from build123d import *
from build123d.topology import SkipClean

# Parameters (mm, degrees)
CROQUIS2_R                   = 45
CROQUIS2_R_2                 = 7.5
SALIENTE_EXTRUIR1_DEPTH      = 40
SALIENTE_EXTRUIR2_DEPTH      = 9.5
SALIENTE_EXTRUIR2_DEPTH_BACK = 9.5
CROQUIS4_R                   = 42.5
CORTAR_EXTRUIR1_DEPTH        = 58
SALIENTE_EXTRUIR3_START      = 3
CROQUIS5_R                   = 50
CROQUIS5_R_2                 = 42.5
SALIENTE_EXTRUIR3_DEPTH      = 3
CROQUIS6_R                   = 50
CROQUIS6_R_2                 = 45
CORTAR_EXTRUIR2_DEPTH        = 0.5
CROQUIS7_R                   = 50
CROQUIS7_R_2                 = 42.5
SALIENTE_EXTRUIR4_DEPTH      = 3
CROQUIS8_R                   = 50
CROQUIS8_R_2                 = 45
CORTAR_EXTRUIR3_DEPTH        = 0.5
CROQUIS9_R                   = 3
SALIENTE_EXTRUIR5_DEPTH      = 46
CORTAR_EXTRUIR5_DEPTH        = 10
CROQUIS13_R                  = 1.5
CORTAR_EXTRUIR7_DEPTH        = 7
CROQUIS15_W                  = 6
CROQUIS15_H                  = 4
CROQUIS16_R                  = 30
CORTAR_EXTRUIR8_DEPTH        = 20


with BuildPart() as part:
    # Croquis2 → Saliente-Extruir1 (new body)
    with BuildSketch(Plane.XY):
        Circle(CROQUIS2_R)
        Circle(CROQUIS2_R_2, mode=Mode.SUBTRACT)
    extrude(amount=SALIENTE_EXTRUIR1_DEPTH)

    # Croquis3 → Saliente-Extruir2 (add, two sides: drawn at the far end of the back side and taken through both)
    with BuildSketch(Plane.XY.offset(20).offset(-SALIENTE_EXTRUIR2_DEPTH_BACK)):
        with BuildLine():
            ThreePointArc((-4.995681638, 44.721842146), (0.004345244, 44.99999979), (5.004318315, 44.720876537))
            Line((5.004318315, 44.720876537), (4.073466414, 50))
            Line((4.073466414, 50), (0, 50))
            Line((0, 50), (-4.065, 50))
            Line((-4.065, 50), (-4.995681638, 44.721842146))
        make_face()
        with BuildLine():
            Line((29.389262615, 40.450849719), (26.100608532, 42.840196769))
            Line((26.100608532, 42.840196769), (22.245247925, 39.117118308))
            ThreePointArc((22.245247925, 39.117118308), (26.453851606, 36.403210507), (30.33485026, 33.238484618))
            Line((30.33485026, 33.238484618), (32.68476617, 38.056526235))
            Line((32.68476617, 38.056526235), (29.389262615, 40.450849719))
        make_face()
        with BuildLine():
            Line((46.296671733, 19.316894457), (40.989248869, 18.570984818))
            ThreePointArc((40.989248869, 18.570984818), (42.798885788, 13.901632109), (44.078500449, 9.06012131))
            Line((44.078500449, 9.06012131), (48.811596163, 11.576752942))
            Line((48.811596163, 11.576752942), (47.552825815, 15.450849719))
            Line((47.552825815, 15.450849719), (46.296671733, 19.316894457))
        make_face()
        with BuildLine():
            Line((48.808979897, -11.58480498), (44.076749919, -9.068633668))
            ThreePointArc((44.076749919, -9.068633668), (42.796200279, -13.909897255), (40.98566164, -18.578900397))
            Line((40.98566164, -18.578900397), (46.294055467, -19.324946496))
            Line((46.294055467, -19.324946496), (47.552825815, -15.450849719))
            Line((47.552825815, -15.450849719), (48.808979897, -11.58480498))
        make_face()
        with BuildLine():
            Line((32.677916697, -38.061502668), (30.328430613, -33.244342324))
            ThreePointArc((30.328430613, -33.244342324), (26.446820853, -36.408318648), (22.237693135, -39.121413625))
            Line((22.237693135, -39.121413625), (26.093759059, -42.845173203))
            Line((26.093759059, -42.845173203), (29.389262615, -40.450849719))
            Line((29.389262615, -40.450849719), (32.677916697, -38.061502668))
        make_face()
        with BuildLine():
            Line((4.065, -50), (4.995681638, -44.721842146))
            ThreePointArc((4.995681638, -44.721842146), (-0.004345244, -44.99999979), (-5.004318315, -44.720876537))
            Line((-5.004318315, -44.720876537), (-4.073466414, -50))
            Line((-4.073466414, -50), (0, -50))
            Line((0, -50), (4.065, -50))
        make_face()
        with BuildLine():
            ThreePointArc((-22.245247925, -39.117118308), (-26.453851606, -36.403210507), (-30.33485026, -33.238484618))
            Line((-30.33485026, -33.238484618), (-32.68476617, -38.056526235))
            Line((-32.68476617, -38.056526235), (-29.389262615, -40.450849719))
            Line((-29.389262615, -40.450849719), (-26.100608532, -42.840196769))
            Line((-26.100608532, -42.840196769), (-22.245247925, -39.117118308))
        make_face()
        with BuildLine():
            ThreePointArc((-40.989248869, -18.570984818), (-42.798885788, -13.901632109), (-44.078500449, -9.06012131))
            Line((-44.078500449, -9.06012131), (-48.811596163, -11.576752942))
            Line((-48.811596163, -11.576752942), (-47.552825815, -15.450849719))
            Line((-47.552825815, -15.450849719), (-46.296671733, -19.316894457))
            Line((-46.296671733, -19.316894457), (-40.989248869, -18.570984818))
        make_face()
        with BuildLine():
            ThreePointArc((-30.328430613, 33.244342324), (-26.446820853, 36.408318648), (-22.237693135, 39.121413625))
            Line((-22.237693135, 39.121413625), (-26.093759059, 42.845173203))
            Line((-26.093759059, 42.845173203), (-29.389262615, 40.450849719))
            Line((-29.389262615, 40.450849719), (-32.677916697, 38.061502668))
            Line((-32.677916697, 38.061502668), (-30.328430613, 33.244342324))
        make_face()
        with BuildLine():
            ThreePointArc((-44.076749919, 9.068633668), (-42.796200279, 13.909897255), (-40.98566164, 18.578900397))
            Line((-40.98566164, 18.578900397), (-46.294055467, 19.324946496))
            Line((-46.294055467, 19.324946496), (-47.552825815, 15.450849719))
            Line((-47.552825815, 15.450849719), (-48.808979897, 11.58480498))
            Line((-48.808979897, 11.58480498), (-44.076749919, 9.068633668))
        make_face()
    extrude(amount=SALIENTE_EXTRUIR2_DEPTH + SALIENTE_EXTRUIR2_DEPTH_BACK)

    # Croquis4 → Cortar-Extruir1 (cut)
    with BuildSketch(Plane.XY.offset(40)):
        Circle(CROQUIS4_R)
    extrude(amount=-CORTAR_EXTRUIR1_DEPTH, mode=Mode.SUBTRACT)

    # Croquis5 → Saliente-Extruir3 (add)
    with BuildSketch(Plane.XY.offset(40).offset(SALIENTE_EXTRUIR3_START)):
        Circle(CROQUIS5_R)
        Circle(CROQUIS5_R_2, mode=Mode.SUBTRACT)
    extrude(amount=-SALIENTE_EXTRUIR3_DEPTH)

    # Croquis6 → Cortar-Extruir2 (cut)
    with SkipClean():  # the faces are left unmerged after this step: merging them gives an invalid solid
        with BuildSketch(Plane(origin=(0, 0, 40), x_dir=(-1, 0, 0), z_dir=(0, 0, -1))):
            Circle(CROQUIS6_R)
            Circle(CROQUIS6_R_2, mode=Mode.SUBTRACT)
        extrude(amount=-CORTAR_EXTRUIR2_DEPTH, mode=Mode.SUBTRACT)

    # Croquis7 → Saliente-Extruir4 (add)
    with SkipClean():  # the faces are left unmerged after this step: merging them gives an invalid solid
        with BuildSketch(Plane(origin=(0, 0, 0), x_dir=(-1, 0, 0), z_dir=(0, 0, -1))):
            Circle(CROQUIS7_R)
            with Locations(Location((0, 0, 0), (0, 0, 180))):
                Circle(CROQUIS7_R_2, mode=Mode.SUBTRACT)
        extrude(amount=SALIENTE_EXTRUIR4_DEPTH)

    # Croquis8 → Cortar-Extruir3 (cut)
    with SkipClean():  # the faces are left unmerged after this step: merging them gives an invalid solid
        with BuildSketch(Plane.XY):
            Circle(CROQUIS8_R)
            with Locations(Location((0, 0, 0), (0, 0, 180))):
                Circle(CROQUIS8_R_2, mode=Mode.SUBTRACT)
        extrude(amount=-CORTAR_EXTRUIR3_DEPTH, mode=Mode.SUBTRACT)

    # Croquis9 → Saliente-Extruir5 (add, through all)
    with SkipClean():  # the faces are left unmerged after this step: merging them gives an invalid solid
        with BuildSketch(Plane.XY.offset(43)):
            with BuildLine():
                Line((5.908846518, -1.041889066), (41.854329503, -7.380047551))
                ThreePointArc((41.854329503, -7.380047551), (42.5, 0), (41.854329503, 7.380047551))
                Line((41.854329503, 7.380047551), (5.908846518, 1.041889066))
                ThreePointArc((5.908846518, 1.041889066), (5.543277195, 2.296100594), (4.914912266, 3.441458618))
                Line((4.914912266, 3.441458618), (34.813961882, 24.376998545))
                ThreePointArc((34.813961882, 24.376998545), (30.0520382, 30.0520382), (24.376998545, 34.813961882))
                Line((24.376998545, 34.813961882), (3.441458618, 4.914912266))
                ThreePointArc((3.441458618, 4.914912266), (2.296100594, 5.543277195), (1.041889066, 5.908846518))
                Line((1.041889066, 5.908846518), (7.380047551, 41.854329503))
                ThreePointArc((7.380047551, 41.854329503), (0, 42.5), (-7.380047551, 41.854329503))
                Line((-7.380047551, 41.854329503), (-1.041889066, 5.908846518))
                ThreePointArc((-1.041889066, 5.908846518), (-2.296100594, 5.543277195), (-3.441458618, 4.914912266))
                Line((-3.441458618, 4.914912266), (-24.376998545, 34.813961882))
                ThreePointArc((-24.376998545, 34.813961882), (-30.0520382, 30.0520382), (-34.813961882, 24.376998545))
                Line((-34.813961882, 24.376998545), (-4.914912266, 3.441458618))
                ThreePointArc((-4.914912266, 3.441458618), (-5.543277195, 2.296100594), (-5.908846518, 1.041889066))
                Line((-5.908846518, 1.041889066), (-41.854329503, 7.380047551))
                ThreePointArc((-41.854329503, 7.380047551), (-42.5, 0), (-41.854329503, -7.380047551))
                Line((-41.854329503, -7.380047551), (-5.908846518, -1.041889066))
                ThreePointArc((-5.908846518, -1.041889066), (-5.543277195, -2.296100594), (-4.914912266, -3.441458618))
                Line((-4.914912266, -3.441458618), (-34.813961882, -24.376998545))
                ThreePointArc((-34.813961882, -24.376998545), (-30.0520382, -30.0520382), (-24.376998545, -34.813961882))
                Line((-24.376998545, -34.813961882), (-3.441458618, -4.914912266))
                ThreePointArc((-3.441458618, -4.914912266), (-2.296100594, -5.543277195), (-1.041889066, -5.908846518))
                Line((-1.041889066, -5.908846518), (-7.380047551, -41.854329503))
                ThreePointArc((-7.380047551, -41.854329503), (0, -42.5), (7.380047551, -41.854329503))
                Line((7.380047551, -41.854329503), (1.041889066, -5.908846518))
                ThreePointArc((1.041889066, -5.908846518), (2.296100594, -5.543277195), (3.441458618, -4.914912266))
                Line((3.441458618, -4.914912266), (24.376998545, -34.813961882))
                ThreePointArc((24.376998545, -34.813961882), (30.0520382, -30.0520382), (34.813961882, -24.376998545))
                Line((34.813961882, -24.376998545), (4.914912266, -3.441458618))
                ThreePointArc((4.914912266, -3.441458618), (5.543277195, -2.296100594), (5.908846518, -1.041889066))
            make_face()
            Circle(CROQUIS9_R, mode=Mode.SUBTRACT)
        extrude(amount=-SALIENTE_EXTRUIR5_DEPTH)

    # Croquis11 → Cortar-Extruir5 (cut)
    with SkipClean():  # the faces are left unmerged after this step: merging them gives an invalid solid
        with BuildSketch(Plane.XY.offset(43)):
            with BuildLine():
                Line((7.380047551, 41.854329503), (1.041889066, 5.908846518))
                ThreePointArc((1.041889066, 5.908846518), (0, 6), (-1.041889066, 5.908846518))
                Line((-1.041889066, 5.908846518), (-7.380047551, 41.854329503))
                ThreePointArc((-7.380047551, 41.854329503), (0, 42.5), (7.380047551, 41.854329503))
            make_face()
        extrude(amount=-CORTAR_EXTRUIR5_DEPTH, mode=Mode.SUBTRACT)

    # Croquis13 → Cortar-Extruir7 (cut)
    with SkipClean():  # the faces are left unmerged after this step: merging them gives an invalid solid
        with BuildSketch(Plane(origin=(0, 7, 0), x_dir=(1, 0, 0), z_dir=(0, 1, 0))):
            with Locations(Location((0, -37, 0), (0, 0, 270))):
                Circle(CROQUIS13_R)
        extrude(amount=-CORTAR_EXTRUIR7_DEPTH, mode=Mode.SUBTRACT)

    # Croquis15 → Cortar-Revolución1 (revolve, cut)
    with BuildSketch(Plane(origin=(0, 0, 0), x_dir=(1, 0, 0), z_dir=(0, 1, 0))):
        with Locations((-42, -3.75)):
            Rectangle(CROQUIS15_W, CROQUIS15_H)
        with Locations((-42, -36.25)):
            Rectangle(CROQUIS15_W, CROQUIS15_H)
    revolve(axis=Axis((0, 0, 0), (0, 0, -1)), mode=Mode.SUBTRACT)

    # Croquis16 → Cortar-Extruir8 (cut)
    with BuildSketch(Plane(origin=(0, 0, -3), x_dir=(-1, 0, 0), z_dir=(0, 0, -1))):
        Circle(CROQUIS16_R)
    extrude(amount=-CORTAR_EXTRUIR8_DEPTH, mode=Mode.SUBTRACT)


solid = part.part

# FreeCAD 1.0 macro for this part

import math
import FreeCAD as App
import Part
import Sketcher
from FreeCAD import Vector
Q = App.Units.Quantity

doc = App.newDocument("Part")
params = doc.addObject("Spreadsheet::Sheet", "Params")
for row, (alias, value) in enumerate([
    ("sketch1_diameter", "90 mm"),
    ("sketch1_diameter2", "15 mm"),
    ("pad1_length", "40 mm"),
    ("sketch2_radius", "45 mm"),
    ("pad2_length", "9.5 mm"),
    ("pad2_length2", "9.5 mm"),
    ("sketch3_diameter", "85 mm"),
    ("pocket1_length", "58 mm"),
    ("sketch4_diameter", "100 mm"),
    ("sketch4_diameter2", "85 mm"),
    ("pad3_length", "3 mm"),
    ("sketch5_diameter", "100 mm"),
    ("sketch5_diameter2", "90 mm"),
    ("pocket2_length", "0.5 mm"),
    ("sketch6_diameter", "100 mm"),
    ("sketch6_diameter2", "85 mm"),
    ("pad4_length", "3 mm"),
    ("sketch7_diameter", "100 mm"),
    ("sketch7_diameter2", "90 mm"),
    ("pocket3_length", "0.5 mm"),
    ("sketch8_diameter", "6 mm"),
    ("sketch8_radius", "6 mm"),
    ("sketch8_radius2", "42.5 mm"),
    ("pad5_length", "46 mm"),
    ("sketch9_radius", "6 mm"),
    ("sketch9_radius2", "42.5 mm"),
    ("pocket4_length", "10 mm"),
    ("sketch10_diameter", "3 mm"),
    ("pocket5_length", "7 mm"),
    ("sketch11_width", "6 mm"),
    ("sketch11_height", "4 mm"),
    ("groove_angle", "360 deg"),
    ("sketch12_diameter", "60 mm"),
    ("pocket6_length", "20 mm"),
], start=1):
    params.set(f"A{row}", alias)
    params.set(f"B{row}", "=" + value)
    params.setAlias(f"B{row}", alias)

body = doc.addObject("PartDesign::Body", "Body")

sketch1 = body.newObject("Sketcher::SketchObject", "Sketch")
sketch1.AttachmentSupport = (doc.getObject("XY_Plane"), [""])
sketch1.MapMode = "FlatFace"
sketch1.addGeometry([
    Part.Circle(Vector(0, 0, 0), Vector(0, 0, 1), 45),
    Part.Circle(Vector(0, 0, 0), Vector(0, 0, 1), 8),
], False)
sketch1.addConstraint([
    Sketcher.Constraint("Coincident", 0, 3, -1, 1),
    Sketcher.Constraint("Coincident", 1, 3, -1, 1),
    Sketcher.Constraint("Diameter", 0, 90.0),
    Sketcher.Constraint("Diameter", 1, 15.0),
])
sketch1.setExpression("Constraints[2]", "Params.sketch1_diameter")
sketch1.setExpression("Constraints[3]", "Params.sketch1_diameter2")
pad1 = body.newObject("PartDesign::Pad", "Pad")
pad1.Profile = sketch1
pad1.setExpression("Length", "Params.pad1_length")

sketch2 = body.newObject("Sketcher::SketchObject", "Sketch001")
sketch2.AttachmentSupport = (doc.getObject("XY_Plane"), [""])
sketch2.MapMode = "FlatFace"
sketch2.AttachmentOffset = App.Placement(Vector(0, 0, 20), App.Rotation())
sketch2.addGeometry([
    Part.ArcOfCircle(Part.Circle(Vector(0, 0, 0), Vector(0, 0, 1), 45), math.radians(83.62), math.radians(96.37)),
    Part.LineSegment(Vector(5, 44.7, 0), Vector(4.1, 50, 0)),
    Part.LineSegment(Vector(4.1, 50, 0), Vector(-4.1, 50, 0)),
    Part.LineSegment(Vector(-4.1, 50, 0), Vector(-5, 44.7, 0)),
    Part.LineSegment(Vector(29.4, 40.5, 0), Vector(26.1, 42.8, 0)),
    Part.LineSegment(Vector(26.1, 42.8, 0), Vector(22.2, 39.1, 0)),
    Part.ArcOfCircle(Part.Circle(Vector(0, 0, 0), Vector(0, 0, 1), 45), math.radians(47.62), math.radians(60.37)),
    Part.LineSegment(Vector(30.3, 33.2, 0), Vector(32.7, 38.1, 0)),
    Part.LineSegment(Vector(32.7, 38.1, 0), Vector(29.4, 40.5, 0)),
    Part.LineSegment(Vector(46.3, 19.3, 0), Vector(41, 18.6, 0)),
    Part.ArcOfCircle(Part.Circle(Vector(0, 0, 0), Vector(0, 0, 1), 45), math.radians(11.62), math.radians(24.37)),
    Part.LineSegment(Vector(44.1, 9.1, 0), Vector(48.8, 11.6, 0)),
    Part.LineSegment(Vector(48.8, 11.6, 0), Vector(47.6, 15.5, 0)),
    Part.LineSegment(Vector(47.6, 15.5, 0), Vector(46.3, 19.3, 0)),
    Part.LineSegment(Vector(48.8, -11.6, 0), Vector(44.1, -9.1, 0)),
    Part.ArcOfCircle(Part.Circle(Vector(0, 0, 0), Vector(0, 0, 1), 45), math.radians(-24.38), math.radians(-11.63)),
    Part.LineSegment(Vector(41, -18.6, 0), Vector(46.3, -19.3, 0)),
    Part.LineSegment(Vector(46.3, -19.3, 0), Vector(47.6, -15.5, 0)),
    Part.LineSegment(Vector(47.6, -15.5, 0), Vector(48.8, -11.6, 0)),
    Part.LineSegment(Vector(32.7, -38.1, 0), Vector(30.3, -33.2, 0)),
    Part.ArcOfCircle(Part.Circle(Vector(0, 0, 0), Vector(0, 0, 1), 45), math.radians(-60.38), math.radians(-47.63)),
    Part.LineSegment(Vector(22.2, -39.1, 0), Vector(26.1, -42.8, 0)),
    Part.LineSegment(Vector(26.1, -42.8, 0), Vector(29.4, -40.5, 0)),
    Part.LineSegment(Vector(29.4, -40.5, 0), Vector(32.7, -38.1, 0)),
    Part.LineSegment(Vector(4.1, -50, 0), Vector(5, -44.7, 0)),
    Part.ArcOfCircle(Part.Circle(Vector(0, 0, 0), Vector(0, 0, 1), 45), math.radians(-96.38), math.radians(-83.63)),
    Part.LineSegment(Vector(-5, -44.7, 0), Vector(-4.1, -50, 0)),
    Part.LineSegment(Vector(-4.1, -50, 0), Vector(4.1, -50, 0)),
    Part.ArcOfCircle(Part.Circle(Vector(0, 0, 0), Vector(0, 0, 1), 45), math.radians(-132.38), math.radians(-119.63)),
    Part.LineSegment(Vector(-30.3, -33.2, 0), Vector(-32.7, -38.1, 0)),
    Part.LineSegment(Vector(-32.7, -38.1, 0), Vector(-29.4, -40.5, 0)),
    Part.LineSegment(Vector(-29.4, -40.5, 0), Vector(-26.1, -42.8, 0)),
    Part.LineSegment(Vector(-26.1, -42.8, 0), Vector(-22.2, -39.1, 0)),
    Part.ArcOfCircle(Part.Circle(Vector(0, 0, 0), Vector(0, 0, 1), 45), math.radians(-168.38), math.radians(-155.63)),
    Part.LineSegment(Vector(-44.1, -9.1, 0), Vector(-48.8, -11.6, 0)),
    Part.LineSegment(Vector(-48.8, -11.6, 0), Vector(-47.6, -15.5, 0)),
    Part.LineSegment(Vector(-47.6, -15.5, 0), Vector(-46.3, -19.3, 0)),
    Part.LineSegment(Vector(-46.3, -19.3, 0), Vector(-41, -18.6, 0)),
    Part.ArcOfCircle(Part.Circle(Vector(0, 0, 0), Vector(0, 0, 1), 45), math.radians(119.62), math.radians(132.37)),
    Part.LineSegment(Vector(-22.2, 39.1, 0), Vector(-26.1, 42.8, 0)),
    Part.LineSegment(Vector(-26.1, 42.8, 0), Vector(-29.4, 40.5, 0)),
    Part.LineSegment(Vector(-29.4, 40.5, 0), Vector(-32.7, 38.1, 0)),
    Part.LineSegment(Vector(-32.7, 38.1, 0), Vector(-30.3, 33.2, 0)),
    Part.ArcOfCircle(Part.Circle(Vector(0, 0, 0), Vector(0, 0, 1), 45), math.radians(155.62), math.radians(168.37)),
    Part.LineSegment(Vector(-41, 18.6, 0), Vector(-46.3, 19.3, 0)),
    Part.LineSegment(Vector(-46.3, 19.3, 0), Vector(-47.6, 15.5, 0)),
    Part.LineSegment(Vector(-47.6, 15.5, 0), Vector(-48.8, 11.6, 0)),
    Part.LineSegment(Vector(-48.8, 11.6, 0), Vector(-44.1, 9.1, 0)),
], False)
sketch2.addConstraint([
    Sketcher.Constraint("Coincident", 0, 1, 1, 1),
    Sketcher.Constraint("Coincident", 1, 2, 2, 1),
    Sketcher.Constraint("Coincident", 2, 2, 3, 1),
    Sketcher.Constraint("Coincident", 3, 2, 0, 2),
    Sketcher.Constraint("Coincident", 4, 2, 5, 1),
    Sketcher.Constraint("Coincident", 5, 2, 6, 2),
    Sketcher.Constraint("Coincident", 6, 1, 7, 1),
    Sketcher.Constraint("Coincident", 7, 2, 8, 1),
    Sketcher.Constraint("Coincident", 8, 2, 4, 1),
    Sketcher.Constraint("Coincident", 9, 2, 10, 2),
    Sketcher.Constraint("Coincident", 10, 1, 11, 1),
    Sketcher.Constraint("Coincident", 11, 2, 12, 1),
    Sketcher.Constraint("Coincident", 12, 2, 13, 1),
    Sketcher.Constraint("Coincident", 13, 2, 9, 1),
    Sketcher.Constraint("Coincident", 14, 2, 15, 2),
    Sketcher.Constraint("Coincident", 15, 1, 16, 1),
    Sketcher.Constraint("Coincident", 16, 2, 17, 1),
    Sketcher.Constraint("Coincident", 17, 2, 18, 1),
    Sketcher.Constraint("Coincident", 18, 2, 14, 1),
    Sketcher.Constraint("Coincident", 19, 2, 20, 2),
    Sketcher.Constraint("Coincident", 20, 1, 21, 1),
    Sketcher.Constraint("Coincident", 21, 2, 22, 1),
    Sketcher.Constraint("Coincident", 22, 2, 23, 1),
    Sketcher.Constraint("Coincident", 23, 2, 19, 1),
    Sketcher.Constraint("Coincident", 24, 2, 25, 2),
    Sketcher.Constraint("Coincident", 25, 1, 26, 1),
    Sketcher.Constraint("Coincident", 26, 2, 27, 1),
    Sketcher.Constraint("Coincident", 27, 2, 24, 1),
    Sketcher.Constraint("Coincident", 28, 1, 29, 1),
    Sketcher.Constraint("Coincident", 29, 2, 30, 1),
    Sketcher.Constraint("Coincident", 30, 2, 31, 1),
    Sketcher.Constraint("Coincident", 31, 2, 32, 1),
    Sketcher.Constraint("Coincident", 32, 2, 28, 2),
    Sketcher.Constraint("Coincident", 33, 1, 34, 1),
    Sketcher.Constraint("Coincident", 34, 2, 35, 1),
    Sketcher.Constraint("Coincident", 35, 2, 36, 1),
    Sketcher.Constraint("Coincident", 36, 2, 37, 1),
    Sketcher.Constraint("Coincident", 37, 2, 33, 2),
    Sketcher.Constraint("Coincident", 38, 1, 39, 1),
    Sketcher.Constraint("Coincident", 39, 2, 40, 1),
    Sketcher.Constraint("Coincident", 40, 2, 41, 1),
    Sketcher.Constraint("Coincident", 41, 2, 42, 1),
    Sketcher.Constraint("Coincident", 42, 2, 38, 2),
    Sketcher.Constraint("Coincident", 43, 1, 44, 1),
    Sketcher.Constraint("Coincident", 44, 2, 45, 1),
    Sketcher.Constraint("Coincident", 45, 2, 46, 1),
    Sketcher.Constraint("Coincident", 46, 2, 47, 1),
    Sketcher.Constraint("Coincident", 47, 2, 43, 2),
    Sketcher.Constraint("Horizontal", 2),
    Sketcher.Constraint("Horizontal", 27),
    Sketcher.Constraint("Coincident", 0, 3, -1, 1),
    Sketcher.Constraint("Coincident", 6, 3, -1, 1),
    Sketcher.Constraint("Coincident", 10, 3, -1, 1),
    Sketcher.Constraint("Coincident", 15, 3, -1, 1),
    Sketcher.Constraint("Coincident", 20, 3, -1, 1),
    Sketcher.Constraint("Coincident", 25, 3, -1, 1),
    Sketcher.Constraint("Coincident", 28, 3, -1, 1),
    Sketcher.Constraint("Coincident", 33, 3, -1, 1),
    Sketcher.Constraint("Coincident", 38, 3, -1, 1),
    Sketcher.Constraint("Coincident", 43, 3, -1, 1),
    Sketcher.Constraint("Equal", 0, 6),
    Sketcher.Constraint("Equal", 6, 10),
    Sketcher.Constraint("Equal", 10, 15),
    Sketcher.Constraint("Equal", 15, 20),
    Sketcher.Constraint("Equal", 20, 25),
    Sketcher.Constraint("Equal", 25, 28),
    Sketcher.Constraint("Equal", 28, 33),
    Sketcher.Constraint("Equal", 33, 38),
    Sketcher.Constraint("Equal", 38, 43),
    Sketcher.Constraint("Symmetric", 1, 2, 26, 2, -1, 1),
    Sketcher.Constraint("Symmetric", 7, 2, 29, 2, -1, 1),
    Sketcher.Constraint("Symmetric", 8, 2, 30, 2, -1, 1),
    Sketcher.Constraint("Symmetric", 4, 2, 31, 2, -1, 1),
    Sketcher.Constraint("Symmetric", 11, 2, 34, 2, -1, 1),
    Sketcher.Constraint("Symmetric", 12, 2, 35, 2, -1, 1),
    Sketcher.Constraint("Symmetric", 13, 2, 36, 2, -1, 1),
    Sketcher.Constraint("Symmetric", 21, 2, 39, 2, -1, 1),
    Sketcher.Constraint("Symmetric", 22, 2, 40, 2, -1, 1),
    Sketcher.Constraint("Symmetric", 23, 2, 41, 2, -1, 1),
    Sketcher.Constraint("Symmetric", 16, 2, 44, 2, -1, 1),
    Sketcher.Constraint("Symmetric", 17, 2, 45, 2, -1, 1),
    Sketcher.Constraint("Symmetric", 18, 2, 46, 2, -1, 1),
    Sketcher.Constraint("Symmetric", 22, 2, 30, 2, -2),
    Sketcher.Constraint("Symmetric", 17, 2, 35, 2, -2),
    Sketcher.Constraint("Parallel", 4, 8),
    Sketcher.Constraint("Parallel", 12, 13),
    Sketcher.Constraint("Parallel", 17, 18),
    Sketcher.Constraint("Parallel", 22, 23),
    Sketcher.Constraint("Parallel", 3, 24),
    Sketcher.Constraint("Parallel", 1, 26),
    Sketcher.Constraint("Parallel", 7, 29),
    Sketcher.Constraint("Parallel", 5, 32),
    Sketcher.Constraint("Parallel", 11, 34),
    Sketcher.Constraint("Parallel", 9, 37),
    Sketcher.Constraint("Parallel", 21, 39),
    Sketcher.Constraint("Parallel", 19, 42),
    Sketcher.Constraint("Parallel", 16, 44),
    Sketcher.Constraint("Parallel", 14, 47),
    Sketcher.Constraint("Equal", 2, 27),
    Sketcher.Constraint("Equal", 3, 5),
    Sketcher.Constraint("Equal", 1, 7),
    Sketcher.Constraint("Equal", 5, 9),
    Sketcher.Constraint("Equal", 7, 11),
    Sketcher.Constraint("Equal", 8, 12),
    Sketcher.Constraint("Equal", 4, 13),
    Sketcher.Constraint("Equal", 9, 14),
    Sketcher.Constraint("Equal", 11, 16),
    Sketcher.Constraint("Equal", 12, 17),
    Sketcher.Constraint("Equal", 13, 18),
    Sketcher.Constraint("Equal", 14, 19),
    Sketcher.Constraint("Equal", 16, 21),
    Sketcher.Constraint("Equal", 17, 22),
    Sketcher.Constraint("Equal", 18, 23),
    Sketcher.Constraint("Radius", 0, 45.0),
    Sketcher.Constraint("Angle", 1, Q("100 deg")),
    Sketcher.Constraint("Angle", 3, Q("-100 deg")),
    Sketcher.Constraint("Angle", 4, Q("144 deg")),
    Sketcher.Constraint("Angle", 5, Q("-136 deg")),
    Sketcher.Constraint("Angle", 7, Q("64 deg")),
    Sketcher.Constraint("Angle", 9, Q("-172 deg")),
    Sketcher.Constraint("Angle", 11, Q("28 deg")),
    Sketcher.Constraint("Angle", 12, Q("108 deg")),
    Sketcher.Constraint("Angle", 14, Q("152 deg")),
    Sketcher.Constraint("Angle", 17, Q("72 deg")),
    Sketcher.Constraint("Angle", 19, Q("116 deg")),
    Sketcher.Constraint("DistanceY", -1, 1, 1, 2, 50.0),
    Sketcher.Constraint("DistanceX", 3, 2, 0, 1, 10.0),
    Sketcher.Constraint("DistanceY", 30, 2, 35, 2, 25.0),
    Sketcher.Constraint("Distance", 4, 4.065),
])
sketch2.setExpression("Constraints[113]", "Params.sketch2_radius")
pad2 = body.newObject("PartDesign::Pad", "Pad001")
pad2.Profile = sketch2
pad2.Type = "TwoLengths"
pad2.setExpression("Length", "Params.pad2_length")
pad2.setExpression("Length2", "Params.pad2_length2")

sketch3 = body.newObject("Sketcher::SketchObject", "Sketch002")
sketch3.AttachmentSupport = (doc.getObject("XY_Plane"), [""])
sketch3.MapMode = "FlatFace"
sketch3.AttachmentOffset = App.Placement(Vector(0, 0, 40), App.Rotation())
sketch3.addGeometry(Part.Circle(Vector(0, 0, 0), Vector(0, 0, 1), 42), False)
sketch3.addConstraint([
    Sketcher.Constraint("Coincident", 0, 3, -1, 1),
    Sketcher.Constraint("Diameter", 0, 85.0),
])
sketch3.setExpression("Constraints[1]", "Params.sketch3_diameter")
pocket1 = body.newObject("PartDesign::Pocket", "Pocket")
pocket1.Profile = sketch3
pocket1.setExpression("Length", "Params.pocket1_length")

sketch4 = body.newObject("Sketcher::SketchObject", "Sketch003")
sketch4.AttachmentSupport = (doc.getObject("XY_Plane"), [""])
sketch4.MapMode = "FlatFace"
sketch4.AttachmentOffset = App.Placement(Vector(0, 0, 43), App.Rotation())
sketch4.addGeometry([
    Part.Circle(Vector(0, 0, 0), Vector(0, 0, 1), 50),
    Part.Circle(Vector(0, 0, 0), Vector(0, 0, 1), 42),
], False)
sketch4.addConstraint([
    Sketcher.Constraint("Coincident", 0, 3, -1, 1),
    Sketcher.Constraint("Coincident", 1, 3, -1, 1),
    Sketcher.Constraint("Diameter", 0, 100.0),
    Sketcher.Constraint("Diameter", 1, 85.0),
])
sketch4.setExpression("Constraints[2]", "Params.sketch4_diameter")
sketch4.setExpression("Constraints[3]", "Params.sketch4_diameter2")
pad3 = body.newObject("PartDesign::Pad", "Pad002")
pad3.Profile = sketch4
pad3.setExpression("Length", "Params.pad3_length")
pad3.Reversed = True

sketch5 = body.newObject("Sketcher::SketchObject", "Sketch004")
sketch5.AttachmentSupport = (doc.getObject("XY_Plane"), [""])
sketch5.MapMode = "FlatFace"
sketch5.AttachmentOffset = App.Placement(Vector(0, 0, 40), App.Rotation())
sketch5.addGeometry([
    Part.Circle(Vector(0, 0, 0), Vector(0, 0, 1), 50),
    Part.Circle(Vector(0, 0, 0), Vector(0, 0, 1), 45),
], False)
sketch5.addConstraint([
    Sketcher.Constraint("Coincident", 0, 3, -1, 1),
    Sketcher.Constraint("Coincident", 1, 3, -1, 1),
    Sketcher.Constraint("Diameter", 0, 100.0),
    Sketcher.Constraint("Diameter", 1, 90.0),
])
sketch5.setExpression("Constraints[2]", "Params.sketch5_diameter")
sketch5.setExpression("Constraints[3]", "Params.sketch5_diameter2")
pocket2 = body.newObject("PartDesign::Pocket", "Pocket001")
pocket2.Profile = sketch5
pocket2.setExpression("Length", "Params.pocket2_length")
pocket2.Reversed = True

sketch6 = body.newObject("Sketcher::SketchObject", "Sketch005")
sketch6.AttachmentSupport = (doc.getObject("XY_Plane"), [""])
sketch6.MapMode = "FlatFace"
sketch6.addGeometry([
    Part.Circle(Vector(0, 0, 0), Vector(0, 0, 1), 50),
    Part.Circle(Vector(0, 0, 0), Vector(0, 0, 1), 42),
], False)
sketch6.addConstraint([
    Sketcher.Constraint("Coincident", 0, 3, -1, 1),
    Sketcher.Constraint("Coincident", 1, 3, -1, 1),
    Sketcher.Constraint("Diameter", 0, 100.0),
    Sketcher.Constraint("Diameter", 1, 85.0),
])
sketch6.setExpression("Constraints[2]", "Params.sketch6_diameter")
sketch6.setExpression("Constraints[3]", "Params.sketch6_diameter2")
pad4 = body.newObject("PartDesign::Pad", "Pad003")
pad4.Profile = sketch6
pad4.setExpression("Length", "Params.pad4_length")
pad4.Reversed = True

sketch7 = body.newObject("Sketcher::SketchObject", "Sketch006")
sketch7.AttachmentSupport = (doc.getObject("XY_Plane"), [""])
sketch7.MapMode = "FlatFace"
sketch7.addGeometry([
    Part.Circle(Vector(0, 0, 0), Vector(0, 0, 1), 50),
    Part.Circle(Vector(0, 0, 0), Vector(0, 0, 1), 45),
], False)
sketch7.addConstraint([
    Sketcher.Constraint("Coincident", 0, 3, -1, 1),
    Sketcher.Constraint("Coincident", 1, 3, -1, 1),
    Sketcher.Constraint("Diameter", 0, 100.0),
    Sketcher.Constraint("Diameter", 1, 90.0),
])
sketch7.setExpression("Constraints[2]", "Params.sketch7_diameter")
sketch7.setExpression("Constraints[3]", "Params.sketch7_diameter2")
pocket3 = body.newObject("PartDesign::Pocket", "Pocket002")
pocket3.Profile = sketch7
pocket3.setExpression("Length", "Params.pocket3_length")

sketch8 = body.newObject("Sketcher::SketchObject", "Sketch007")
sketch8.AttachmentSupport = (doc.getObject("XY_Plane"), [""])
sketch8.MapMode = "FlatFace"
sketch8.AttachmentOffset = App.Placement(Vector(0, 0, 43), App.Rotation())
sketch8.addGeometry([
    Part.LineSegment(Vector(5.9, -1, 0), Vector(41.9, -7.4, 0)),
    Part.ArcOfCircle(Part.Circle(Vector(0, 0, 0), Vector(0, 0, 1), 42.5), math.radians(-10), math.radians(10)),
    Part.LineSegment(Vector(41.9, 7.4, 0), Vector(5.9, 1, 0)),
    Part.ArcOfCircle(Part.Circle(Vector(0, 0, 0), Vector(0, 0, 1), 6), math.radians(10), math.radians(35)),
    Part.LineSegment(Vector(4.9, 3.4, 0), Vector(34.8, 24.4, 0)),
    Part.ArcOfCircle(Part.Circle(Vector(0, 0, 0), Vector(0, 0, 1), 42.5), math.radians(35), math.radians(55)),
    Part.LineSegment(Vector(24.4, 34.8, 0), Vector(3.4, 4.9, 0)),
    Part.ArcOfCircle(Part.Circle(Vector(0, 0, 0), Vector(0, 0, 1), 6), math.radians(55), math.radians(80)),
    Part.LineSegment(Vector(1, 5.9, 0), Vector(7.4, 41.9, 0)),
    Part.ArcOfCircle(Part.Circle(Vector(0, 0, 0), Vector(0, 0, 1), 42.5), math.radians(80), math.radians(100)),
    Part.LineSegment(Vector(-7.4, 41.9, 0), Vector(-1, 5.9, 0)),
    Part.ArcOfCircle(Part.Circle(Vector(0, 0, 0), Vector(0, 0, 1), 6), math.radians(100), math.radians(125)),
    Part.LineSegment(Vector(-3.4, 4.9, 0), Vector(-24.4, 34.8, 0)),
    Part.ArcOfCircle(Part.Circle(Vector(0, 0, 0), Vector(0, 0, 1), 42.5), math.radians(125), math.radians(145)),
    Part.LineSegment(Vector(-34.8, 24.4, 0), Vector(-4.9, 3.4, 0)),
    Part.ArcOfCircle(Part.Circle(Vector(0, 0, 0), Vector(0, 0, 1), 6), math.radians(145), math.radians(170)),
    Part.LineSegment(Vector(-5.9, 1, 0), Vector(-41.9, 7.4, 0)),
    Part.ArcOfCircle(Part.Circle(Vector(0, 0, 0), Vector(0, 0, 1), 42.5), math.radians(170), math.radians(190)),
    Part.LineSegment(Vector(-41.9, -7.4, 0), Vector(-5.9, -1, 0)),
    Part.ArcOfCircle(Part.Circle(Vector(0, 0, 0), Vector(0, 0, 1), 6), math.radians(-170), math.radians(-145)),
    Part.LineSegment(Vector(-4.9, -3.4, 0), Vector(-34.8, -24.4, 0)),
    Part.ArcOfCircle(Part.Circle(Vector(0, 0, 0), Vector(0, 0, 1), 42.5), math.radians(-145), math.radians(-125)),
    Part.LineSegment(Vector(-24.4, -34.8, 0), Vector(-3.4, -4.9, 0)),
    Part.ArcOfCircle(Part.Circle(Vector(0, 0, 0), Vector(0, 0, 1), 6), math.radians(-125), math.radians(-100)),
    Part.LineSegment(Vector(-1, -5.9, 0), Vector(-7.4, -41.9, 0)),
    Part.ArcOfCircle(Part.Circle(Vector(0, 0, 0), Vector(0, 0, 1), 42.5), math.radians(-100), math.radians(-80)),
    Part.LineSegment(Vector(7.4, -41.9, 0), Vector(1, -5.9, 0)),
    Part.ArcOfCircle(Part.Circle(Vector(0, 0, 0), Vector(0, 0, 1), 6), math.radians(-80), math.radians(-55)),
    Part.LineSegment(Vector(3.4, -4.9, 0), Vector(24.4, -34.8, 0)),
    Part.ArcOfCircle(Part.Circle(Vector(0, 0, 0), Vector(0, 0, 1), 42.5), math.radians(-55), math.radians(-35)),
    Part.LineSegment(Vector(34.8, -24.4, 0), Vector(4.9, -3.4, 0)),
    Part.ArcOfCircle(Part.Circle(Vector(0, 0, 0), Vector(0, 0, 1), 6), math.radians(-35), math.radians(-10)),
    Part.Circle(Vector(0, 0, 0), Vector(0, 0, 1), 3),
], False)
sketch8.addConstraint([
    Sketcher.Constraint("Coincident", 0, 2, 1, 1),
    Sketcher.Constraint("Coincident", 1, 2, 2, 1),
    Sketcher.Constraint("Coincident", 2, 2, 3, 1),
    Sketcher.Constraint("Coincident", 3, 2, 4, 1),
    Sketcher.Constraint("Coincident", 4, 2, 5, 1),
    Sketcher.Constraint("Coincident", 5, 2, 6, 1),
    Sketcher.Constraint("Coincident", 6, 2, 7, 1),
    Sketcher.Constraint("Coincident", 7, 2, 8, 1),
    Sketcher.Constraint("Coincident", 8, 2, 9, 1),
    Sketcher.Constraint("Coincident", 9, 2, 10, 1),
    Sketcher.Constraint("Coincident", 10, 2, 11, 1),
    Sketcher.Constraint("Coincident", 11, 2, 12, 1),
    Sketcher.Constraint("Coincident", 12, 2, 13, 1),
    Sketcher.Constraint("Coincident", 13, 2, 14, 1),
    Sketcher.Constraint("Coincident", 14, 2, 15, 1),
    Sketcher.Constraint("Coincident", 15, 2, 16, 1),
    Sketcher.Constraint("Coincident", 16, 2, 17, 1),
    Sketcher.Constraint("Coincident", 17, 2, 18, 1),
    Sketcher.Constraint("Coincident", 18, 2, 19, 1),
    Sketcher.Constraint("Coincident", 19, 2, 20, 1),
    Sketcher.Constraint("Coincident", 20, 2, 21, 1),
    Sketcher.Constraint("Coincident", 21, 2, 22, 1),
    Sketcher.Constraint("Coincident", 22, 2, 23, 1),
    Sketcher.Constraint("Coincident", 23, 2, 24, 1),
    Sketcher.Constraint("Coincident", 24, 2, 25, 1),
    Sketcher.Constraint("Coincident", 25, 2, 26, 1),
    Sketcher.Constraint("Coincident", 26, 2, 27, 1),
    Sketcher.Constraint("Coincident", 27, 2, 28, 1),
    Sketcher.Constraint("Coincident", 28, 2, 29, 1),
    Sketcher.Constraint("Coincident", 29, 2, 30, 1),
    Sketcher.Constraint("Coincident", 30, 2, 31, 1),
    Sketcher.Constraint("Coincident", 31, 2, 0, 1),
    Sketcher.Constraint("Coincident", 1, 3, -1, 1),
    Sketcher.Constraint("Coincident", 3, 3, -1, 1),
    Sketcher.Constraint("Coincident", 5, 3, -1, 1),
    Sketcher.Constraint("Coincident", 7, 3, -1, 1),
    Sketcher.Constraint("Coincident", 9, 3, -1, 1),
    Sketcher.Constraint("Coincident", 11, 3, -1, 1),
    Sketcher.Constraint("Coincident", 13, 3, -1, 1),
    Sketcher.Constraint("Coincident", 15, 3, -1, 1),
    Sketcher.Constraint("Coincident", 17, 3, -1, 1),
    Sketcher.Constraint("Coincident", 19, 3, -1, 1),
    Sketcher.Constraint("Coincident", 21, 3, -1, 1),
    Sketcher.Constraint("Coincident", 23, 3, -1, 1),
    Sketcher.Constraint("Coincident", 25, 3, -1, 1),
    Sketcher.Constraint("Coincident", 27, 3, -1, 1),
    Sketcher.Constraint("Coincident", 29, 3, -1, 1),
    Sketcher.Constraint("Coincident", 31, 3, -1, 1),
    Sketcher.Constraint("Coincident", 32, 3, -1, 1),
    Sketcher.Constraint("Equal", 1, 5),
    Sketcher.Constraint("Equal", 3, 7),
    Sketcher.Constraint("Equal", 5, 9),
    Sketcher.Constraint("Equal", 7, 11),
    Sketcher.Constraint("Equal", 9, 13),
    Sketcher.Constraint("Equal", 11, 15),
    Sketcher.Constraint("Equal", 13, 17),
    Sketcher.Constraint("Equal", 15, 19),
    Sketcher.Constraint("Equal", 17, 21),
    Sketcher.Constraint("Equal", 19, 23),
    Sketcher.Constraint("Equal", 21, 25),
    Sketcher.Constraint("Equal", 23, 27),
    Sketcher.Constraint("Equal", 25, 29),
    Sketcher.Constraint("Equal", 27, 31),
    Sketcher.Constraint("Perpendicular", 0, 8),
    Sketcher.Constraint("Perpendicular", 2, 10),
    Sketcher.Constraint("Perpendicular", 4, 12),
    Sketcher.Constraint("Perpendicular", 6, 14),
    Sketcher.Constraint("Perpendicular", 8, 16),
    Sketcher.Constraint("Perpendicular", 10, 18),
    Sketcher.Constraint("Perpendicular", 12, 20),
    Sketcher.Constraint("Perpendicular", 14, 22),
    Sketcher.Constraint("Perpendicular", 16, 24),
    Sketcher.Constraint("Perpendicular", 18, 26),
    Sketcher.Constraint("Perpendicular", 20, 28),
    Sketcher.Constraint("Perpendicular", 22, 30),
    Sketcher.Constraint("Horizontal", 8, 2, 9, 2),
    Sketcher.Constraint("Horizontal", 7, 2, 10, 2),
    Sketcher.Constraint("Horizontal", 6, 2, 11, 2),
    Sketcher.Constraint("Horizontal", 5, 2, 12, 2),
    Sketcher.Constraint("Horizontal", 4, 2, 13, 2),
    Sketcher.Constraint("Horizontal", 2, 2, 15, 2),
    Sketcher.Constraint("Horizontal", 0, 2, 17, 2),
    Sketcher.Constraint("Horizontal", 24, 2, 25, 2),
    Sketcher.Constraint("Horizontal", 22, 2, 27, 2),
    Sketcher.Constraint("Horizontal", 20, 2, 29, 2),
    Sketcher.Constraint("Vertical", 0, 2, 1, 2),
    Sketcher.Constraint("Vertical", 14, 2, 19, 2),
    Sketcher.Constraint("Vertical", 12, 2, 21, 2),
    Sketcher.Constraint("Vertical", 10, 2, 23, 2),
    Sketcher.Constraint("Diameter", 32, 6.0),
    Sketcher.Constraint("Radius", 3, 6.0),
    Sketcher.Constraint("Radius", 1, 42.5),
    Sketcher.Constraint("Angle", 0, Q("-10 deg")),
    Sketcher.Constraint("Angle", 4, Q("35 deg")),
    Sketcher.Constraint("DistanceY", -1, 1, 4, 2, 24.376999),
    Sketcher.Constraint("DistanceX", -1, 1, 5, 2, 24.376999),
    Sketcher.Constraint("DistanceX", -1, 1, 0, 2, 41.85433),
    Sketcher.Constraint("DistanceX", -1, 1, 7, 2, 1.041889),
])
sketch8.setExpression("Constraints[89]", "Params.sketch8_diameter")
sketch8.setExpression("Constraints[90]", "Params.sketch8_radius")
sketch8.setExpression("Constraints[91]", "Params.sketch8_radius2")
pad5 = body.newObject("PartDesign::Pad", "Pad004")
pad5.Profile = sketch8
pad5.setExpression("Length", "Params.pad5_length")
pad5.Reversed = True

sketch9 = body.newObject("Sketcher::SketchObject", "Sketch008")
sketch9.AttachmentSupport = (doc.getObject("XY_Plane"), [""])
sketch9.MapMode = "FlatFace"
sketch9.AttachmentOffset = App.Placement(Vector(0, 0, 43), App.Rotation())
sketch9.addGeometry([
    Part.LineSegment(Vector(1, 5.9, 0), Vector(7.4, 41.9, 0)),
    Part.ArcOfCircle(Part.Circle(Vector(0, 0, 0), Vector(0, 0, 1), 42.5), math.radians(80), math.radians(100)),
    Part.LineSegment(Vector(-7.4, 41.9, 0), Vector(-1, 5.9, 0)),
    Part.ArcOfCircle(Part.Circle(Vector(0, 0, 0), Vector(0, 0, 1), 6), math.radians(80), math.radians(100)),
], False)
sketch9.addConstraint([
    Sketcher.Constraint("Coincident", 0, 2, 1, 1),
    Sketcher.Constraint("Coincident", 1, 2, 2, 1),
    Sketcher.Constraint("Coincident", 2, 2, 3, 2),
    Sketcher.Constraint("Coincident", 3, 1, 0, 1),
    Sketcher.Constraint("Coincident", 1, 3, -1, 1),
    Sketcher.Constraint("Coincident", 3, 3, -1, 1),
    Sketcher.Constraint("Horizontal", 0, 2, 1, 2),
    Sketcher.Constraint("Horizontal", 2, 2, 3, 1),
    Sketcher.Constraint("Radius", 3, 6.0),
    Sketcher.Constraint("Radius", 1, 42.5),
    Sketcher.Constraint("Angle", 0, Q("80 deg")),
    Sketcher.Constraint("DistanceY", -1, 1, 0, 2, 41.85433),
])
sketch9.setExpression("Constraints[8]", "Params.sketch9_radius")
sketch9.setExpression("Constraints[9]", "Params.sketch9_radius2")
pocket4 = body.newObject("PartDesign::Pocket", "Pocket003")
pocket4.Profile = sketch9
pocket4.setExpression("Length", "Params.pocket4_length")

sketch10 = body.newObject("Sketcher::SketchObject", "Sketch009")
sketch10.AttachmentSupport = (doc.getObject("XZ_Plane"), [""])
sketch10.MapMode = "FlatFace"
sketch10.AttachmentOffset = App.Placement(Vector(0, 0, -7), App.Rotation())
sketch10.addGeometry(Part.Circle(Vector(0, 37, 0), Vector(0, 0, 1), 1.5), False)
sketch10.addConstraint([
    Sketcher.Constraint("PointOnObject", 0, 3, -2),
    Sketcher.Constraint("Diameter", 0, 3.0),
    Sketcher.Constraint("DistanceY", -1, 1, 0, 3, 37.0),
])
sketch10.setExpression("Constraints[1]", "Params.sketch10_diameter")
pocket5 = body.newObject("PartDesign::Pocket", "Pocket004")
pocket5.Profile = sketch10
pocket5.setExpression("Length", "Params.pocket5_length")
pocket5.Reversed = True

sketch11 = body.newObject("Sketcher::SketchObject", "Sketch010")
sketch11.AttachmentSupport = (doc.getObject("XZ_Plane"), [""])
sketch11.MapMode = "FlatFace"
sketch11.addGeometry([
    Part.LineSegment(Vector(-45, 1.8, 0), Vector(-45, 5.8, 0)),
    Part.LineSegment(Vector(-45, 5.8, 0), Vector(-39, 5.8, 0)),
    Part.LineSegment(Vector(-39, 5.8, 0), Vector(-39, 1.8, 0)),
    Part.LineSegment(Vector(-39, 1.8, 0), Vector(-45, 1.8, 0)),
    Part.LineSegment(Vector(-45, 34.2, 0), Vector(-45, 38.2, 0)),
    Part.LineSegment(Vector(-45, 38.2, 0), Vector(-39, 38.2, 0)),
    Part.LineSegment(Vector(-39, 38.2, 0), Vector(-39, 34.2, 0)),
    Part.LineSegment(Vector(-39, 34.2, 0), Vector(-45, 34.2, 0)),
], False)
sketch11.addConstraint([
    Sketcher.Constraint("Coincident", 0, 2, 1, 1),
    Sketcher.Constraint("Coincident", 1, 2, 2, 1),
    Sketcher.Constraint("Coincident", 2, 2, 3, 1),
    Sketcher.Constraint("Coincident", 3, 2, 0, 1),
    Sketcher.Constraint("Coincident", 4, 2, 5, 1),
    Sketcher.Constraint("Coincident", 5, 2, 6, 1),
    Sketcher.Constraint("Coincident", 6, 2, 7, 1),
    Sketcher.Constraint("Coincident", 7, 2, 4, 1),
    Sketcher.Constraint("Vertical", 0),
    Sketcher.Constraint("Horizontal", 1),
    Sketcher.Constraint("Vertical", 2),
    Sketcher.Constraint("Horizontal", 3),
    Sketcher.Constraint("Vertical", 4),
    Sketcher.Constraint("Horizontal", 5),
    Sketcher.Constraint("Vertical", 6),
    Sketcher.Constraint("Horizontal", 7),
    Sketcher.Constraint("Vertical", 3, 2, 4, 2),
    Sketcher.Constraint("Vertical", 2, 2, 5, 2),
    Sketcher.Constraint("Equal", 2, 4),
    Sketcher.Constraint("DistanceX", 1, 1, 1, 2, 6.0),
    Sketcher.Constraint("DistanceY", 0, 1, 0, 2, 4.0),
    Sketcher.Constraint("DistanceX", 0, 2, -1, 1, 45.0),
    Sketcher.Constraint("DistanceY", 0, 2, 4, 2, 32.5),
    Sketcher.Constraint("DistanceY", -1, 1, 0, 2, 5.75),
])
sketch11.setExpression("Constraints[19]", "Params.sketch11_width")
sketch11.setExpression("Constraints[20]", "Params.sketch11_height")
groove = body.newObject("PartDesign::Groove", "Groove")
groove.Profile = sketch11
groove.ReferenceAxis = (sketch11, ["V_Axis"])
groove.setExpression("Angle", "Params.groove_angle")

sketch12 = body.newObject("Sketcher::SketchObject", "Sketch011")
sketch12.AttachmentSupport = (doc.getObject("XY_Plane"), [""])
sketch12.MapMode = "FlatFace"
sketch12.AttachmentOffset = App.Placement(Vector(0, 0, -3), App.Rotation())
sketch12.addGeometry(Part.Circle(Vector(0, 0, 0), Vector(0, 0, 1), 30), False)
sketch12.addConstraint([
    Sketcher.Constraint("Coincident", 0, 3, -1, 1),
    Sketcher.Constraint("Diameter", 0, 60.0),
])
sketch12.setExpression("Constraints[1]", "Params.sketch12_diameter")
pocket6 = body.newObject("PartDesign::Pocket", "Pocket005")
pocket6.Profile = sketch12
pocket6.setExpression("Length", "Params.pocket6_length")
pocket6.Reversed = True

doc.recompute()
